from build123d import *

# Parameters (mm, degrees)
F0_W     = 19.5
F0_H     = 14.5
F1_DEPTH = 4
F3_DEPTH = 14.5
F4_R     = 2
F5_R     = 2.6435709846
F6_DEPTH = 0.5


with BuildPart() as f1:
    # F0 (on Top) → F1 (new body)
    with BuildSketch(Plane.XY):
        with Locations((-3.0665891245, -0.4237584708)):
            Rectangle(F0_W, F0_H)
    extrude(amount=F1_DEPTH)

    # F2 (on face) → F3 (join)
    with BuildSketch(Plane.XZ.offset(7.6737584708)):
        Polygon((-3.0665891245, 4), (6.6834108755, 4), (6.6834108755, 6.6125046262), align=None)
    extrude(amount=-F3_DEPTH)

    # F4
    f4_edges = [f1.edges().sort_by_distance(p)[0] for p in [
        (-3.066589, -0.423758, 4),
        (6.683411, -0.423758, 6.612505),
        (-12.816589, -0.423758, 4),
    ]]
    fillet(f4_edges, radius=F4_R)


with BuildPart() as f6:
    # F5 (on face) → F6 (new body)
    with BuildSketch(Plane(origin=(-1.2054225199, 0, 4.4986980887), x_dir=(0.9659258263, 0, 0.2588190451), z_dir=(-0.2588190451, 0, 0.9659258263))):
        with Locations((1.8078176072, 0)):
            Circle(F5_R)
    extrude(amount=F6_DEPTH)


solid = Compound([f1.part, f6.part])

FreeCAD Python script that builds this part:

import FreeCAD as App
import Part
import Sketcher
Q = App.Units.Quantity


def edges_at(feature, points):
    """Names of the edges that pass closest to the given points."""
    edges = feature.Shape.Edges
    near = lambda p: min(range(len(edges)), key=lambda i: edges[i].distToShape(Part.Vertex(*p))[0])
    return sorted({f"Edge{near(p) + 1}" for p in points})

doc = App.newDocument("Part")
body = doc.addObject("PartDesign::Body", "Body")

# Sketch on XY plane
sketch1 = body.newObject("Sketcher::SketchObject", "Sketch")
sketch1.AttachmentSupport = (doc.getObject("XY_Plane"), [""])
sketch1.MapMode = "FlatFace"
sketch1.addGeometry([
    Part.LineSegment(App.Vector(-12.816589, 6.826242, 0), App.Vector(-12.816589, -7.673758, 0)),
    Part.LineSegment(App.Vector(-12.816589, -7.673758, 0), App.Vector(6.683411, -7.673758, 0)),
    Part.LineSegment(App.Vector(6.683411, -7.673758, 0), App.Vector(6.683411, 6.826242, 0)),
    Part.LineSegment(App.Vector(6.683411, 6.826242, 0), App.Vector(-12.816589, 6.826242, 0)),
], False)
sketch1.addConstraint([
    Sketcher.Constraint("Coincident", 0, 2, 1, 1),
    Sketcher.Constraint("Coincident", 1, 2, 2, 1),
    Sketcher.Constraint("Coincident", 2, 2, 3, 1),
    Sketcher.Constraint("Coincident", 3, 2, 0, 1),
    Sketcher.Constraint("Vertical", 0),
    Sketcher.Constraint("Horizontal", 1),
    Sketcher.Constraint("Vertical", 2),
    Sketcher.Constraint("Horizontal", 3),
    Sketcher.Constraint("DistanceX", 1, 1, 1, 2, Q("19.5 mm")),
    Sketcher.Constraint("DistanceY", 0, 2, 0, 1, Q("14.5 mm")),
    Sketcher.Constraint("DistanceX", 0, 2, -1, 1, Q("12.816589 mm")),
    Sketcher.Constraint("DistanceY", 0, 2, -1, 1, Q("7.673758 mm")),
])
pad1 = body.newObject("PartDesign::Pad", "Pad")
pad1.Profile = sketch1
pad1.Length = 4

# Sketch on XZ plane
sketch2 = body.newObject("Sketcher::SketchObject", "Sketch001")
sketch2.AttachmentSupport = (doc.getObject("XZ_Plane"), [""])
sketch2.MapMode = "FlatFace"
sketch2.AttachmentOffset = App.Placement(App.Vector(0, 0, 7.673758), App.Rotation())
sketch2.addGeometry([
    Part.LineSegment(App.Vector(-3.066589, 4, 0), App.Vector(6.683411, 4, 0)),
    Part.LineSegment(App.Vector(6.683411, 4, 0), App.Vector(6.683411, 6.612505, 0)),
    Part.LineSegment(App.Vector(6.683411, 6.612505, 0), App.Vector(-3.066589, 4, 0)),
], False)
sketch2.addConstraint([
    Sketcher.Constraint("Coincident", 0, 2, 1, 1),
    Sketcher.Constraint("Coincident", 1, 2, 2, 1),
    Sketcher.Constraint("Coincident", 2, 2, 0, 1),
    Sketcher.Constraint("Horizontal", 0),
    Sketcher.Constraint("Vertical", 1),
    Sketcher.Constraint("Angle", 2, Q("-165 deg")),
    Sketcher.Constraint("DistanceY", -1, 1, 0, 2, Q("4 mm")),
    Sketcher.Constraint("DistanceX", 0, 1, 0, 2, Q("9.75 mm")),
    Sketcher.Constraint("DistanceX", -1, 1, 0, 2, Q("6.683411 mm")),
])
pad2 = body.newObject("PartDesign::Pad", "Pad001")
pad2.Profile = sketch2
pad2.Length = 14.5
pad2.Reversed = True
doc.recompute()

fillet = body.newObject("PartDesign::Fillet", "Fillet")
fillet.Base = (pad2, edges_at(pad2, [(-3.067, -0.424, 4), (6.683, -0.424, 6.613), (-12.817, -0.424, 4)]))
fillet.Radius = 2
body2 = doc.addObject("PartDesign::Body", "Body001")

# Sketch on an angled plane
sketch3 = body2.newObject("Sketcher::SketchObject", "Sketch002")
sketch3.Placement = App.Placement(App.Vector(-1.205423, 0, 4.498698), App.Rotation(App.Vector(0.965925826, 0, 0.258819045), App.Vector(0, 0.999999999, 0), App.Vector(-0.258819045, 0, 0.965925826), "ZXY"))
sketch3.addGeometry(Part.Circle(App.Vector(1.807818, 0, 0), App.Vector(0, 0, 1), 2.643571), False)
sketch3.addConstraint([
    Sketcher.Constraint("PointOnObject", 0, 3, -1),
    Sketcher.Constraint("Diameter", 0, Q("5.287142 mm")),
    Sketcher.Constraint("DistanceX", -1, 1, 0, 3, Q("1.807818 mm")),
])
pad3 = body2.newObject("PartDesign::Pad", "Pad002")
pad3.Profile = sketch3
pad3.Length = 0.5

doc.recompute()
